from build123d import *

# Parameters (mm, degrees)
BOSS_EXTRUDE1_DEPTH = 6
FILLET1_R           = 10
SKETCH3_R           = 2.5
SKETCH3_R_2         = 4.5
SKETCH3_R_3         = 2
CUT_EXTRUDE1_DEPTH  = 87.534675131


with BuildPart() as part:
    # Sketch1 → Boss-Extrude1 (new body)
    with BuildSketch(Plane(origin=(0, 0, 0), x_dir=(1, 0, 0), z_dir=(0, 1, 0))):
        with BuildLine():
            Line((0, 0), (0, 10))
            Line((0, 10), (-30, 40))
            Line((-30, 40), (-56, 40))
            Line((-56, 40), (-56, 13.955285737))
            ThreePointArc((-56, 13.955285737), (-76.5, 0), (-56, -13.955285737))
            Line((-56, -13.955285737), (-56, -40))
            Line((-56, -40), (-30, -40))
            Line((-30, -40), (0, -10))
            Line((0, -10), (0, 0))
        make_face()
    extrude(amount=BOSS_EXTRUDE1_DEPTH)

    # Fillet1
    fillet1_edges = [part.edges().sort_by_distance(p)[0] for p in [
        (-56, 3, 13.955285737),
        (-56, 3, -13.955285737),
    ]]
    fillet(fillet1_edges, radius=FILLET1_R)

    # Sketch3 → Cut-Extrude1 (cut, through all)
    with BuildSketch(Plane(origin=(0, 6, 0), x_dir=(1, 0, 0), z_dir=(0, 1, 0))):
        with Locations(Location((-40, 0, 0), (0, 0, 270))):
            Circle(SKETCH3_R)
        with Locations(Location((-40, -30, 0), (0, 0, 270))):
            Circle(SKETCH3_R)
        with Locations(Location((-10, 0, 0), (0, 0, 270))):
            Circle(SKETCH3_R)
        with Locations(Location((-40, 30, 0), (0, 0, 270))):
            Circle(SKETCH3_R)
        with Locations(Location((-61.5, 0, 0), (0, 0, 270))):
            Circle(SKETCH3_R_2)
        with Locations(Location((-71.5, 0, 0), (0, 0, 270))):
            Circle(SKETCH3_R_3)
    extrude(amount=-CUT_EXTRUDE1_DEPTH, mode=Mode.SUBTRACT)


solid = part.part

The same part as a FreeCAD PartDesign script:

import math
import FreeCAD as App
import Part
import Sketcher

V = App.Vector
Q = App.Units.Quantity


def edges_at(feature, points):
    """Names of the edges that pass closest to the given points."""
    edges = feature.Shape.Edges
    near = lambda p: min(range(len(edges)), key=lambda i: edges[i].distToShape(Part.Vertex(*p))[0])
    return sorted({f"Edge{near(p) + 1}" for p in points})

doc = App.newDocument("Part")
body = doc.addObject("PartDesign::Body", "Body")

# Sketch on XZ plane
sketch1 = body.newObject("Sketcher::SketchObject", "Sketch")
sketch1.AttachmentSupport = (doc.getObject("XZ_Plane"), [""])
sketch1.MapMode = "FlatFace"
sketch1.addGeometry(Part.LineSegment(V(0, -10, 0), V(-30, -40, 0)), False)
sketch1.addGeometry(Part.LineSegment(V(-30, -40, 0), V(-56, -40, 0)), False)
sketch1.addGeometry(Part.LineSegment(V(-56, -40, 0), V(-56, -13.955286, 0)), False)
sketch1.addGeometry(Part.ArcOfCircle(Part.Circle(V(-61.5, 0, 0), V(0, 0, 1), 15), math.radians(68.489812), math.radians(291.510188)), False)
sketch1.addGeometry(Part.LineSegment(V(-56, 13.955286, 0), V(-56, 40, 0)), False)
sketch1.addGeometry(Part.LineSegment(V(-56, 40, 0), V(-30, 40, 0)), False)
sketch1.addGeometry(Part.LineSegment(V(-30, 40, 0), V(0, 10, 0)), False)
sketch1.addGeometry(Part.LineSegment(V(0, 10, 0), V(0, -10, 0)), False)
sketch1.addConstraint(Sketcher.Constraint("Coincident", 0, 2, 1, 1))
sketch1.addConstraint(Sketcher.Constraint("Coincident", 1, 2, 2, 1))
sketch1.addConstraint(Sketcher.Constraint("Coincident", 2, 2, 3, 2))
sketch1.addConstraint(Sketcher.Constraint("Coincident", 3, 1, 4, 1))
sketch1.addConstraint(Sketcher.Constraint("Coincident", 4, 2, 5, 1))
sketch1.addConstraint(Sketcher.Constraint("Coincident", 5, 2, 6, 1))
sketch1.addConstraint(Sketcher.Constraint("Coincident", 6, 2, 7, 1))
sketch1.addConstraint(Sketcher.Constraint("Coincident", 7, 2, 0, 1))
sketch1.addConstraint(Sketcher.Constraint("Horizontal", 1))
sketch1.addConstraint(Sketcher.Constraint("Vertical", 2))
sketch1.addConstraint(Sketcher.Constraint("Vertical", 4))
sketch1.addConstraint(Sketcher.Constraint("Horizontal", 5))
sketch1.addConstraint(Sketcher.Constraint("Vertical", 7))
sketch1.addConstraint(Sketcher.Constraint("Symmetric", 6, 2, 7, 2, -1, 1))
sketch1.addConstraint(Sketcher.Constraint("Symmetric", 2, 2, 3, 1, -1))
sketch1.addConstraint(Sketcher.Constraint("Symmetric", 0, 2, 5, 2, -1))
sketch1.addConstraint(Sketcher.Constraint("Perpendicular", 0, 6))
sketch1.addConstraint(Sketcher.Constraint("Radius", 3, Q("15 mm")))
sketch1.addConstraint(Sketcher.Constraint("DistanceX", 1, 2, 1, 1, Q("26 mm")))
sketch1.addConstraint(Sketcher.Constraint("DistanceY", 7, 2, 7, 1, Q("20 mm")))
sketch1.addConstraint(Sketcher.Constraint("DistanceX", 0, 2, -1, 1, Q("30 mm")))
sketch1.addConstraint(Sketcher.Constraint("DistanceX", 3, 3, -1, 1, Q("61.5 mm")))
pad1 = body.newObject("PartDesign::Pad", "Pad")
pad1.Profile = sketch1
pad1.Length = 6
pad1.Reversed = True
doc.recompute()

fillet = body.newObject("PartDesign::Fillet", "Fillet")
fillet.Base = (pad1, edges_at(pad1, [(-56, 3, 13.955), (-56, 3, -13.955)]))
fillet.Radius = 10

# Sketch on XZ plane
sketch2 = body.newObject("Sketcher::SketchObject", "Sketch001")
sketch2.AttachmentSupport = (doc.getObject("XZ_Plane"), [""])
sketch2.MapMode = "FlatFace"
sketch2.AttachmentOffset = App.Placement(V(0, 0, -6), App.Rotation())
sketch2.addGeometry(Part.Circle(V(-40, 0, 0), V(0, 0, 1), 2.5), False)
sketch2.addGeometry(Part.Circle(V(-40, 30, 0), V(0, 0, 1), 2.5), False)
sketch2.addGeometry(Part.Circle(V(-10, 0, 0), V(0, 0, 1), 2.5), False)
sketch2.addGeometry(Part.Circle(V(-40, -30, 0), V(0, 0, 1), 2.5), False)
sketch2.addGeometry(Part.Circle(V(-61.5, 0, 0), V(0, 0, 1), 4.5), False)
sketch2.addGeometry(Part.Circle(V(-71.5, 0, 0), V(0, 0, 1), 2), False)
sketch2.addConstraint(Sketcher.Constraint("Equal", 0, 1))
sketch2.addConstraint(Sketcher.Constraint("Equal", 1, 2))
sketch2.addConstraint(Sketcher.Constraint("Equal", 2, 3))
sketch2.addConstraint(Sketcher.Constraint("Symmetric", 1, 3, 3, 3, -1))
sketch2.addConstraint(Sketcher.Constraint("PointOnObject", 0, 3, -1))
sketch2.addConstraint(Sketcher.Constraint("PointOnObject", 2, 3, -1))
sketch2.addConstraint(Sketcher.Constraint("PointOnObject", 4, 3, -1))
sketch2.addConstraint(Sketcher.Constraint("PointOnObject", 5, 3, -1))
sketch2.addConstraint(Sketcher.Constraint("Vertical", 0, 3, 1, 3))
sketch2.addConstraint(Sketcher.Constraint("Diameter", 0, Q("5 mm")))
sketch2.addConstraint(Sketcher.Constraint("Diameter", 4, Q("9 mm")))
sketch2.addConstraint(Sketcher.Constraint("Diameter", 5, Q("4 mm")))
sketch2.addConstraint(Sketcher.Constraint("DistanceX", 0, 3, -1, 1, Q("40 mm")))
sketch2.addConstraint(Sketcher.Constraint("DistanceY", -1, 1, 1, 3, Q("30 mm")))
sketch2.addConstraint(Sketcher.Constraint("DistanceX", 2, 3, -1, 1, Q("10 mm")))
sketch2.addConstraint(Sketcher.Constraint("DistanceX", 5, 3, 4, 3, Q("10 mm")))
sketch2.addConstraint(Sketcher.Constraint("DistanceX", 4, 3, -1, 1, Q("61.5 mm")))
pocket1 = body.newObject("PartDesign::Pocket", "Pocket")
pocket1.Profile = sketch2
pocket1.Type = "ThroughAll"
pocket1.Reversed = True

doc.recompute()
